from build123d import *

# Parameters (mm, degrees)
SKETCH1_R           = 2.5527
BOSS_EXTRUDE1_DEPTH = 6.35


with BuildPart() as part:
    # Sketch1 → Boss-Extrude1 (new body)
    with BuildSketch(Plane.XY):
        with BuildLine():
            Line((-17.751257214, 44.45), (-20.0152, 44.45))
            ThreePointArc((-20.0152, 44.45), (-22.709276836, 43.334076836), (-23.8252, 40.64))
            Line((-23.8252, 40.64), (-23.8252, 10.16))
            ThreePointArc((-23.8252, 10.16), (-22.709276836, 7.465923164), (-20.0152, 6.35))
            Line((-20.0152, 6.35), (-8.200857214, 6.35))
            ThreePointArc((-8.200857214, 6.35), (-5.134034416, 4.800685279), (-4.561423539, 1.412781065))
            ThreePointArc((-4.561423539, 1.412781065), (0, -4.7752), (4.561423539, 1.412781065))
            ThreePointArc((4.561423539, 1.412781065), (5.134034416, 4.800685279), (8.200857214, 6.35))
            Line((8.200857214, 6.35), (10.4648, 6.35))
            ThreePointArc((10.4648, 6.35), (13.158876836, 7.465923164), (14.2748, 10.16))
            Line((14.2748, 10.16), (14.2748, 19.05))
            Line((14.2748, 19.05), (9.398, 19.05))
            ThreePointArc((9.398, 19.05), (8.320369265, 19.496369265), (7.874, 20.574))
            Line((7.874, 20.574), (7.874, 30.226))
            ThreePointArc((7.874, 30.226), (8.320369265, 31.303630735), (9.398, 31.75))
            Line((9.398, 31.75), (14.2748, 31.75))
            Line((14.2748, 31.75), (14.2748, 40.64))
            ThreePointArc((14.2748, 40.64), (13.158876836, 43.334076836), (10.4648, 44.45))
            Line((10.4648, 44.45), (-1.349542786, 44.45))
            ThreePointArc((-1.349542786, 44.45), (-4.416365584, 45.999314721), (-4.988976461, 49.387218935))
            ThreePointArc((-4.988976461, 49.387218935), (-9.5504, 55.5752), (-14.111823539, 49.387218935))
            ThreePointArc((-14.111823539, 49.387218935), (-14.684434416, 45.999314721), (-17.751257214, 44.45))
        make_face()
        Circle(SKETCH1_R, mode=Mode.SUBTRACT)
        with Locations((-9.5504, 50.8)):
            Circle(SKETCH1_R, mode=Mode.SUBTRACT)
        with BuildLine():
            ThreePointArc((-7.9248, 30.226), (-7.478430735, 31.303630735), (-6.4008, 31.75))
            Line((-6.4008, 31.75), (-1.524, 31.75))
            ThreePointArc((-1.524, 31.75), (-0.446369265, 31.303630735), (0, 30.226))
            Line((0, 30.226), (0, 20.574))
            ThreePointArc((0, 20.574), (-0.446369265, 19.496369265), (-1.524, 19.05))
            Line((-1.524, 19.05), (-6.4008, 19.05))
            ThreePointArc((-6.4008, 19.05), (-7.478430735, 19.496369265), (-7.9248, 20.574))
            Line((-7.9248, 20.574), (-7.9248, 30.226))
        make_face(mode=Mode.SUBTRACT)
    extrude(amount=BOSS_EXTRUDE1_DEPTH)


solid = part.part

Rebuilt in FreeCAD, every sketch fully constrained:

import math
import FreeCAD as App
import Part
import Sketcher

V = App.Vector
Q = App.Units.Quantity

doc = App.newDocument("Part")
body = doc.addObject("PartDesign::Body", "Body")

# Sketch on XY plane
sketch1 = body.newObject("Sketcher::SketchObject", "Sketch")
sketch1.AttachmentSupport = (doc.getObject("XY_Plane"), [""])
sketch1.MapMode = "FlatFace"
sketch1.addGeometry([
    Part.LineSegment(V(-17.8, 44.5, 0), V(-20, 44.5, 0)),  # 0
    Part.ArcOfCircle(Part.Circle(V(-20, 40.6, 0), V(0, 0, 1), 3.8), math.radians(90), math.radians(180)),  # 1
    Part.LineSegment(V(-23.8, 40.6, 0), V(-23.8, 10.2, 0)),  # 2
    Part.ArcOfCircle(Part.Circle(V(-20, 10.2, 0), V(0, 0, 1), 3.8), math.radians(-180), math.radians(-90)),  # 3
    Part.LineSegment(V(-20, 6.3, 0), V(-8.2, 6.3, 0)),  # 4
    Part.ArcOfCircle(Part.Circle(V(-8.2, 2.5, 0), V(0, 0, 1), 3.8), math.radians(-17), math.radians(90)),  # 5
    Part.ArcOfCircle(Part.Circle(V(0, 0, 0), V(0, 0, 1), 4.8), math.radians(163), math.radians(377)),  # 6
    Part.ArcOfCircle(Part.Circle(V(8.2, 2.5, 0), V(0, 0, 1), 3.8), math.radians(90), math.radians(197)),  # 7
    Part.LineSegment(V(8.2, 6.3, 0), V(10.5, 6.3, 0)),  # 8
    Part.ArcOfCircle(Part.Circle(V(10.5, 10.2, 0), V(0, 0, 1), 3.8), math.radians(-90), math.radians(0)),  # 9
    Part.LineSegment(V(14.3, 10.2, 0), V(14.3, 19.1, 0)),  # 10
    Part.LineSegment(V(14.3, 19.1, 0), V(9.4, 19.1, 0)),  # 11
    Part.ArcOfCircle(Part.Circle(V(9.4, 20.6, 0), V(0, 0, 1), 1.5), math.radians(180), math.radians(270)),  # 12
    Part.LineSegment(V(7.9, 20.6, 0), V(7.9, 30.2, 0)),  # 13
    Part.ArcOfCircle(Part.Circle(V(9.4, 30.2, 0), V(0, 0, 1), 1.5), math.radians(90), math.radians(180)),  # 14
    Part.LineSegment(V(9.4, 31.8, 0), V(14.3, 31.8, 0)),  # 15
    Part.LineSegment(V(14.3, 31.8, 0), V(14.3, 40.6, 0)),  # 16
    Part.ArcOfCircle(Part.Circle(V(10.5, 40.6, 0), V(0, 0, 1), 3.8), math.radians(0), math.radians(90)),  # 17
    Part.LineSegment(V(10.5, 44.5, 0), V(-1.3, 44.5, 0)),  # 18
    Part.ArcOfCircle(Part.Circle(V(-1.3, 48.3, 0), V(0, 0, 1), 3.8), math.radians(163), math.radians(270)),  # 19
    Part.ArcOfCircle(Part.Circle(V(-9.6, 50.8, 0), V(0, 0, 1), 4.8), math.radians(-17), math.radians(197)),  # 20
    Part.ArcOfCircle(Part.Circle(V(-17.8, 48.3, 0), V(0, 0, 1), 3.8), math.radians(-90), math.radians(17)),  # 21
    Part.Circle(V(0, 0, 0), V(0, 0, 1), 2.6),  # 22
    Part.Circle(V(-9.6, 50.8, 0), V(0, 0, 1), 2.6),  # 23
    Part.LineSegment(V(-7.9, 20.6, 0), V(-7.9, 30.2, 0)),  # 24
    Part.ArcOfCircle(Part.Circle(V(-6.4, 30.2, 0), V(0, 0, 1), 1.5), math.radians(90), math.radians(180)),  # 25
    Part.LineSegment(V(-6.4, 31.8, 0), V(-1.5, 31.8, 0)),  # 26
    Part.ArcOfCircle(Part.Circle(V(-1.5, 30.2, 0), V(0, 0, 1), 1.5), math.radians(0), math.radians(90)),  # 27
    Part.LineSegment(V(0, 30.2, 0), V(0, 20.6, 0)),  # 28
    Part.ArcOfCircle(Part.Circle(V(-1.5, 20.6, 0), V(0, 0, 1), 1.5), math.radians(-90), math.radians(0)),  # 29
    Part.LineSegment(V(-1.5, 19.1, 0), V(-6.4, 19.1, 0)),  # 30
    Part.ArcOfCircle(Part.Circle(V(-6.4, 20.6, 0), V(0, 0, 1), 1.5), math.radians(180), math.radians(270)),  # 31
], False)
sketch1.addConstraint([
    Sketcher.Constraint("Tangent", 0, 2, 1, 1),
    Sketcher.Constraint("Tangent", 1, 2, 2, 1),
    Sketcher.Constraint("Tangent", 2, 2, 3, 1),
    Sketcher.Constraint("Tangent", 3, 2, 4, 1),
    Sketcher.Constraint("Tangent", 4, 2, 5, 2),
    Sketcher.Constraint("Tangent", 5, 1, 6, 1),
    Sketcher.Constraint("Tangent", 6, 2, 7, 2),
    Sketcher.Constraint("Tangent", 7, 1, 8, 1),
    Sketcher.Constraint("Tangent", 8, 2, 9, 1),
    Sketcher.Constraint("Tangent", 9, 2, 10, 1),
    Sketcher.Constraint("Coincident", 10, 2, 11, 1),
    Sketcher.Constraint("Tangent", 11, 2, 12, 2),
    Sketcher.Constraint("Tangent", 12, 1, 13, 1),
    Sketcher.Constraint("Tangent", 13, 2, 14, 2),
    Sketcher.Constraint("Tangent", 14, 1, 15, 1),
    Sketcher.Constraint("Coincident", 15, 2, 16, 1),
    Sketcher.Constraint("Tangent", 16, 2, 17, 1),
    Sketcher.Constraint("Tangent", 17, 2, 18, 1),
    Sketcher.Constraint("Tangent", 18, 2, 19, 2),
    Sketcher.Constraint("Tangent", 19, 1, 20, 1),
    Sketcher.Constraint("Tangent", 20, 2, 21, 2),
    Sketcher.Constraint("Tangent", 21, 1, 0, 1),
    Sketcher.Constraint("Tangent", 24, 2, 25, 2),
    Sketcher.Constraint("Tangent", 25, 1, 26, 1),
    Sketcher.Constraint("Tangent", 26, 2, 27, 2),
    Sketcher.Constraint("Tangent", 27, 1, 28, 1),
    Sketcher.Constraint("Tangent", 28, 2, 29, 2),
    Sketcher.Constraint("Tangent", 29, 1, 30, 1),
    Sketcher.Constraint("Tangent", 30, 2, 31, 2),
    Sketcher.Constraint("Tangent", 31, 1, 24, 1),
    Sketcher.Constraint("Horizontal", 0),
    Sketcher.Constraint("Vertical", 2),
    Sketcher.Constraint("Horizontal", 4),
    Sketcher.Constraint("Horizontal", 8),
    Sketcher.Constraint("Vertical", 10),
    Sketcher.Constraint("Horizontal", 11),
    Sketcher.Constraint("Vertical", 13),
    Sketcher.Constraint("Horizontal", 15),
    Sketcher.Constraint("Vertical", 16),
    Sketcher.Constraint("Horizontal", 18),
    Sketcher.Constraint("Vertical", 24),
    Sketcher.Constraint("Horizontal", 26),
    Sketcher.Constraint("Vertical", 28),
    Sketcher.Constraint("Horizontal", 30),
    Sketcher.Constraint("Coincident", 6, 3, -1, 1),
    Sketcher.Constraint("Coincident", 22, 3, -1, 1),
    Sketcher.Constraint("Coincident", 23, 3, 20, 3),
    Sketcher.Constraint("Equal", 1, 3),
    Sketcher.Constraint("Equal", 3, 5),
    Sketcher.Constraint("Equal", 5, 7),
    Sketcher.Constraint("Equal", 7, 9),
    Sketcher.Constraint("Equal", 12, 14),
    Sketcher.Constraint("Equal", 9, 17),
    Sketcher.Constraint("Equal", 17, 19),
    Sketcher.Constraint("Equal", 6, 20),
    Sketcher.Constraint("Equal", 19, 21),
    Sketcher.Constraint("Equal", 22, 23),
    Sketcher.Constraint("Equal", 14, 25),
    Sketcher.Constraint("Equal", 25, 27),
    Sketcher.Constraint("Equal", 27, 29),
    Sketcher.Constraint("Equal", 29, 31),
    Sketcher.Constraint("PointOnObject", 27, 1, -2),
    Sketcher.Constraint("Horizontal", 5, 3, 7, 3),
    Sketcher.Constraint("Horizontal", 1, 3, 17, 3),
    Sketcher.Constraint("Horizontal", 14, 3, 25, 3),
    Sketcher.Constraint("Horizontal", 12, 3, 29, 3),
    Sketcher.Constraint("Vertical", 9, 3, 17, 3),
    Sketcher.Constraint("Equal", 0, 8),
    Sketcher.Constraint("Equal", 4, 18),
    Sketcher.Constraint("Equal", 15, 26),
    Sketcher.Constraint("Equal", 10, 16),
    Sketcher.Constraint("Radius", 1, Q("0.15 in")),
    Sketcher.Constraint("Radius", 12, Q("0.06 in")),
    Sketcher.Constraint("Diameter", 22, Q("0.201 in")),
    Sketcher.Constraint("DistanceY", 2, 2, 2, 1, Q("1.2 in")),
    Sketcher.Constraint("DistanceY", -1, 1, 20, 3, Q("2 in")),
    Sketcher.Constraint("Radius", 6, Q("0.188 in")),
    Sketcher.Constraint("DistanceY", 10, 1, 10, 2, Q("0.35 in")),
    Sketcher.Constraint("DistanceX", 3, 3, 9, 3, Q("1.2 in")),
    Sketcher.Constraint("DistanceX", 11, 2, 11, 1, Q("0.192 in")),
    Sketcher.Constraint("DistanceX", -1, 1, 12, 3, Q("0.37 in")),
])
pad1 = body.newObject("PartDesign::Pad", "Pad")
pad1.Profile = sketch1
pad1.Length = Q("0.25 in")

doc.recompute()
